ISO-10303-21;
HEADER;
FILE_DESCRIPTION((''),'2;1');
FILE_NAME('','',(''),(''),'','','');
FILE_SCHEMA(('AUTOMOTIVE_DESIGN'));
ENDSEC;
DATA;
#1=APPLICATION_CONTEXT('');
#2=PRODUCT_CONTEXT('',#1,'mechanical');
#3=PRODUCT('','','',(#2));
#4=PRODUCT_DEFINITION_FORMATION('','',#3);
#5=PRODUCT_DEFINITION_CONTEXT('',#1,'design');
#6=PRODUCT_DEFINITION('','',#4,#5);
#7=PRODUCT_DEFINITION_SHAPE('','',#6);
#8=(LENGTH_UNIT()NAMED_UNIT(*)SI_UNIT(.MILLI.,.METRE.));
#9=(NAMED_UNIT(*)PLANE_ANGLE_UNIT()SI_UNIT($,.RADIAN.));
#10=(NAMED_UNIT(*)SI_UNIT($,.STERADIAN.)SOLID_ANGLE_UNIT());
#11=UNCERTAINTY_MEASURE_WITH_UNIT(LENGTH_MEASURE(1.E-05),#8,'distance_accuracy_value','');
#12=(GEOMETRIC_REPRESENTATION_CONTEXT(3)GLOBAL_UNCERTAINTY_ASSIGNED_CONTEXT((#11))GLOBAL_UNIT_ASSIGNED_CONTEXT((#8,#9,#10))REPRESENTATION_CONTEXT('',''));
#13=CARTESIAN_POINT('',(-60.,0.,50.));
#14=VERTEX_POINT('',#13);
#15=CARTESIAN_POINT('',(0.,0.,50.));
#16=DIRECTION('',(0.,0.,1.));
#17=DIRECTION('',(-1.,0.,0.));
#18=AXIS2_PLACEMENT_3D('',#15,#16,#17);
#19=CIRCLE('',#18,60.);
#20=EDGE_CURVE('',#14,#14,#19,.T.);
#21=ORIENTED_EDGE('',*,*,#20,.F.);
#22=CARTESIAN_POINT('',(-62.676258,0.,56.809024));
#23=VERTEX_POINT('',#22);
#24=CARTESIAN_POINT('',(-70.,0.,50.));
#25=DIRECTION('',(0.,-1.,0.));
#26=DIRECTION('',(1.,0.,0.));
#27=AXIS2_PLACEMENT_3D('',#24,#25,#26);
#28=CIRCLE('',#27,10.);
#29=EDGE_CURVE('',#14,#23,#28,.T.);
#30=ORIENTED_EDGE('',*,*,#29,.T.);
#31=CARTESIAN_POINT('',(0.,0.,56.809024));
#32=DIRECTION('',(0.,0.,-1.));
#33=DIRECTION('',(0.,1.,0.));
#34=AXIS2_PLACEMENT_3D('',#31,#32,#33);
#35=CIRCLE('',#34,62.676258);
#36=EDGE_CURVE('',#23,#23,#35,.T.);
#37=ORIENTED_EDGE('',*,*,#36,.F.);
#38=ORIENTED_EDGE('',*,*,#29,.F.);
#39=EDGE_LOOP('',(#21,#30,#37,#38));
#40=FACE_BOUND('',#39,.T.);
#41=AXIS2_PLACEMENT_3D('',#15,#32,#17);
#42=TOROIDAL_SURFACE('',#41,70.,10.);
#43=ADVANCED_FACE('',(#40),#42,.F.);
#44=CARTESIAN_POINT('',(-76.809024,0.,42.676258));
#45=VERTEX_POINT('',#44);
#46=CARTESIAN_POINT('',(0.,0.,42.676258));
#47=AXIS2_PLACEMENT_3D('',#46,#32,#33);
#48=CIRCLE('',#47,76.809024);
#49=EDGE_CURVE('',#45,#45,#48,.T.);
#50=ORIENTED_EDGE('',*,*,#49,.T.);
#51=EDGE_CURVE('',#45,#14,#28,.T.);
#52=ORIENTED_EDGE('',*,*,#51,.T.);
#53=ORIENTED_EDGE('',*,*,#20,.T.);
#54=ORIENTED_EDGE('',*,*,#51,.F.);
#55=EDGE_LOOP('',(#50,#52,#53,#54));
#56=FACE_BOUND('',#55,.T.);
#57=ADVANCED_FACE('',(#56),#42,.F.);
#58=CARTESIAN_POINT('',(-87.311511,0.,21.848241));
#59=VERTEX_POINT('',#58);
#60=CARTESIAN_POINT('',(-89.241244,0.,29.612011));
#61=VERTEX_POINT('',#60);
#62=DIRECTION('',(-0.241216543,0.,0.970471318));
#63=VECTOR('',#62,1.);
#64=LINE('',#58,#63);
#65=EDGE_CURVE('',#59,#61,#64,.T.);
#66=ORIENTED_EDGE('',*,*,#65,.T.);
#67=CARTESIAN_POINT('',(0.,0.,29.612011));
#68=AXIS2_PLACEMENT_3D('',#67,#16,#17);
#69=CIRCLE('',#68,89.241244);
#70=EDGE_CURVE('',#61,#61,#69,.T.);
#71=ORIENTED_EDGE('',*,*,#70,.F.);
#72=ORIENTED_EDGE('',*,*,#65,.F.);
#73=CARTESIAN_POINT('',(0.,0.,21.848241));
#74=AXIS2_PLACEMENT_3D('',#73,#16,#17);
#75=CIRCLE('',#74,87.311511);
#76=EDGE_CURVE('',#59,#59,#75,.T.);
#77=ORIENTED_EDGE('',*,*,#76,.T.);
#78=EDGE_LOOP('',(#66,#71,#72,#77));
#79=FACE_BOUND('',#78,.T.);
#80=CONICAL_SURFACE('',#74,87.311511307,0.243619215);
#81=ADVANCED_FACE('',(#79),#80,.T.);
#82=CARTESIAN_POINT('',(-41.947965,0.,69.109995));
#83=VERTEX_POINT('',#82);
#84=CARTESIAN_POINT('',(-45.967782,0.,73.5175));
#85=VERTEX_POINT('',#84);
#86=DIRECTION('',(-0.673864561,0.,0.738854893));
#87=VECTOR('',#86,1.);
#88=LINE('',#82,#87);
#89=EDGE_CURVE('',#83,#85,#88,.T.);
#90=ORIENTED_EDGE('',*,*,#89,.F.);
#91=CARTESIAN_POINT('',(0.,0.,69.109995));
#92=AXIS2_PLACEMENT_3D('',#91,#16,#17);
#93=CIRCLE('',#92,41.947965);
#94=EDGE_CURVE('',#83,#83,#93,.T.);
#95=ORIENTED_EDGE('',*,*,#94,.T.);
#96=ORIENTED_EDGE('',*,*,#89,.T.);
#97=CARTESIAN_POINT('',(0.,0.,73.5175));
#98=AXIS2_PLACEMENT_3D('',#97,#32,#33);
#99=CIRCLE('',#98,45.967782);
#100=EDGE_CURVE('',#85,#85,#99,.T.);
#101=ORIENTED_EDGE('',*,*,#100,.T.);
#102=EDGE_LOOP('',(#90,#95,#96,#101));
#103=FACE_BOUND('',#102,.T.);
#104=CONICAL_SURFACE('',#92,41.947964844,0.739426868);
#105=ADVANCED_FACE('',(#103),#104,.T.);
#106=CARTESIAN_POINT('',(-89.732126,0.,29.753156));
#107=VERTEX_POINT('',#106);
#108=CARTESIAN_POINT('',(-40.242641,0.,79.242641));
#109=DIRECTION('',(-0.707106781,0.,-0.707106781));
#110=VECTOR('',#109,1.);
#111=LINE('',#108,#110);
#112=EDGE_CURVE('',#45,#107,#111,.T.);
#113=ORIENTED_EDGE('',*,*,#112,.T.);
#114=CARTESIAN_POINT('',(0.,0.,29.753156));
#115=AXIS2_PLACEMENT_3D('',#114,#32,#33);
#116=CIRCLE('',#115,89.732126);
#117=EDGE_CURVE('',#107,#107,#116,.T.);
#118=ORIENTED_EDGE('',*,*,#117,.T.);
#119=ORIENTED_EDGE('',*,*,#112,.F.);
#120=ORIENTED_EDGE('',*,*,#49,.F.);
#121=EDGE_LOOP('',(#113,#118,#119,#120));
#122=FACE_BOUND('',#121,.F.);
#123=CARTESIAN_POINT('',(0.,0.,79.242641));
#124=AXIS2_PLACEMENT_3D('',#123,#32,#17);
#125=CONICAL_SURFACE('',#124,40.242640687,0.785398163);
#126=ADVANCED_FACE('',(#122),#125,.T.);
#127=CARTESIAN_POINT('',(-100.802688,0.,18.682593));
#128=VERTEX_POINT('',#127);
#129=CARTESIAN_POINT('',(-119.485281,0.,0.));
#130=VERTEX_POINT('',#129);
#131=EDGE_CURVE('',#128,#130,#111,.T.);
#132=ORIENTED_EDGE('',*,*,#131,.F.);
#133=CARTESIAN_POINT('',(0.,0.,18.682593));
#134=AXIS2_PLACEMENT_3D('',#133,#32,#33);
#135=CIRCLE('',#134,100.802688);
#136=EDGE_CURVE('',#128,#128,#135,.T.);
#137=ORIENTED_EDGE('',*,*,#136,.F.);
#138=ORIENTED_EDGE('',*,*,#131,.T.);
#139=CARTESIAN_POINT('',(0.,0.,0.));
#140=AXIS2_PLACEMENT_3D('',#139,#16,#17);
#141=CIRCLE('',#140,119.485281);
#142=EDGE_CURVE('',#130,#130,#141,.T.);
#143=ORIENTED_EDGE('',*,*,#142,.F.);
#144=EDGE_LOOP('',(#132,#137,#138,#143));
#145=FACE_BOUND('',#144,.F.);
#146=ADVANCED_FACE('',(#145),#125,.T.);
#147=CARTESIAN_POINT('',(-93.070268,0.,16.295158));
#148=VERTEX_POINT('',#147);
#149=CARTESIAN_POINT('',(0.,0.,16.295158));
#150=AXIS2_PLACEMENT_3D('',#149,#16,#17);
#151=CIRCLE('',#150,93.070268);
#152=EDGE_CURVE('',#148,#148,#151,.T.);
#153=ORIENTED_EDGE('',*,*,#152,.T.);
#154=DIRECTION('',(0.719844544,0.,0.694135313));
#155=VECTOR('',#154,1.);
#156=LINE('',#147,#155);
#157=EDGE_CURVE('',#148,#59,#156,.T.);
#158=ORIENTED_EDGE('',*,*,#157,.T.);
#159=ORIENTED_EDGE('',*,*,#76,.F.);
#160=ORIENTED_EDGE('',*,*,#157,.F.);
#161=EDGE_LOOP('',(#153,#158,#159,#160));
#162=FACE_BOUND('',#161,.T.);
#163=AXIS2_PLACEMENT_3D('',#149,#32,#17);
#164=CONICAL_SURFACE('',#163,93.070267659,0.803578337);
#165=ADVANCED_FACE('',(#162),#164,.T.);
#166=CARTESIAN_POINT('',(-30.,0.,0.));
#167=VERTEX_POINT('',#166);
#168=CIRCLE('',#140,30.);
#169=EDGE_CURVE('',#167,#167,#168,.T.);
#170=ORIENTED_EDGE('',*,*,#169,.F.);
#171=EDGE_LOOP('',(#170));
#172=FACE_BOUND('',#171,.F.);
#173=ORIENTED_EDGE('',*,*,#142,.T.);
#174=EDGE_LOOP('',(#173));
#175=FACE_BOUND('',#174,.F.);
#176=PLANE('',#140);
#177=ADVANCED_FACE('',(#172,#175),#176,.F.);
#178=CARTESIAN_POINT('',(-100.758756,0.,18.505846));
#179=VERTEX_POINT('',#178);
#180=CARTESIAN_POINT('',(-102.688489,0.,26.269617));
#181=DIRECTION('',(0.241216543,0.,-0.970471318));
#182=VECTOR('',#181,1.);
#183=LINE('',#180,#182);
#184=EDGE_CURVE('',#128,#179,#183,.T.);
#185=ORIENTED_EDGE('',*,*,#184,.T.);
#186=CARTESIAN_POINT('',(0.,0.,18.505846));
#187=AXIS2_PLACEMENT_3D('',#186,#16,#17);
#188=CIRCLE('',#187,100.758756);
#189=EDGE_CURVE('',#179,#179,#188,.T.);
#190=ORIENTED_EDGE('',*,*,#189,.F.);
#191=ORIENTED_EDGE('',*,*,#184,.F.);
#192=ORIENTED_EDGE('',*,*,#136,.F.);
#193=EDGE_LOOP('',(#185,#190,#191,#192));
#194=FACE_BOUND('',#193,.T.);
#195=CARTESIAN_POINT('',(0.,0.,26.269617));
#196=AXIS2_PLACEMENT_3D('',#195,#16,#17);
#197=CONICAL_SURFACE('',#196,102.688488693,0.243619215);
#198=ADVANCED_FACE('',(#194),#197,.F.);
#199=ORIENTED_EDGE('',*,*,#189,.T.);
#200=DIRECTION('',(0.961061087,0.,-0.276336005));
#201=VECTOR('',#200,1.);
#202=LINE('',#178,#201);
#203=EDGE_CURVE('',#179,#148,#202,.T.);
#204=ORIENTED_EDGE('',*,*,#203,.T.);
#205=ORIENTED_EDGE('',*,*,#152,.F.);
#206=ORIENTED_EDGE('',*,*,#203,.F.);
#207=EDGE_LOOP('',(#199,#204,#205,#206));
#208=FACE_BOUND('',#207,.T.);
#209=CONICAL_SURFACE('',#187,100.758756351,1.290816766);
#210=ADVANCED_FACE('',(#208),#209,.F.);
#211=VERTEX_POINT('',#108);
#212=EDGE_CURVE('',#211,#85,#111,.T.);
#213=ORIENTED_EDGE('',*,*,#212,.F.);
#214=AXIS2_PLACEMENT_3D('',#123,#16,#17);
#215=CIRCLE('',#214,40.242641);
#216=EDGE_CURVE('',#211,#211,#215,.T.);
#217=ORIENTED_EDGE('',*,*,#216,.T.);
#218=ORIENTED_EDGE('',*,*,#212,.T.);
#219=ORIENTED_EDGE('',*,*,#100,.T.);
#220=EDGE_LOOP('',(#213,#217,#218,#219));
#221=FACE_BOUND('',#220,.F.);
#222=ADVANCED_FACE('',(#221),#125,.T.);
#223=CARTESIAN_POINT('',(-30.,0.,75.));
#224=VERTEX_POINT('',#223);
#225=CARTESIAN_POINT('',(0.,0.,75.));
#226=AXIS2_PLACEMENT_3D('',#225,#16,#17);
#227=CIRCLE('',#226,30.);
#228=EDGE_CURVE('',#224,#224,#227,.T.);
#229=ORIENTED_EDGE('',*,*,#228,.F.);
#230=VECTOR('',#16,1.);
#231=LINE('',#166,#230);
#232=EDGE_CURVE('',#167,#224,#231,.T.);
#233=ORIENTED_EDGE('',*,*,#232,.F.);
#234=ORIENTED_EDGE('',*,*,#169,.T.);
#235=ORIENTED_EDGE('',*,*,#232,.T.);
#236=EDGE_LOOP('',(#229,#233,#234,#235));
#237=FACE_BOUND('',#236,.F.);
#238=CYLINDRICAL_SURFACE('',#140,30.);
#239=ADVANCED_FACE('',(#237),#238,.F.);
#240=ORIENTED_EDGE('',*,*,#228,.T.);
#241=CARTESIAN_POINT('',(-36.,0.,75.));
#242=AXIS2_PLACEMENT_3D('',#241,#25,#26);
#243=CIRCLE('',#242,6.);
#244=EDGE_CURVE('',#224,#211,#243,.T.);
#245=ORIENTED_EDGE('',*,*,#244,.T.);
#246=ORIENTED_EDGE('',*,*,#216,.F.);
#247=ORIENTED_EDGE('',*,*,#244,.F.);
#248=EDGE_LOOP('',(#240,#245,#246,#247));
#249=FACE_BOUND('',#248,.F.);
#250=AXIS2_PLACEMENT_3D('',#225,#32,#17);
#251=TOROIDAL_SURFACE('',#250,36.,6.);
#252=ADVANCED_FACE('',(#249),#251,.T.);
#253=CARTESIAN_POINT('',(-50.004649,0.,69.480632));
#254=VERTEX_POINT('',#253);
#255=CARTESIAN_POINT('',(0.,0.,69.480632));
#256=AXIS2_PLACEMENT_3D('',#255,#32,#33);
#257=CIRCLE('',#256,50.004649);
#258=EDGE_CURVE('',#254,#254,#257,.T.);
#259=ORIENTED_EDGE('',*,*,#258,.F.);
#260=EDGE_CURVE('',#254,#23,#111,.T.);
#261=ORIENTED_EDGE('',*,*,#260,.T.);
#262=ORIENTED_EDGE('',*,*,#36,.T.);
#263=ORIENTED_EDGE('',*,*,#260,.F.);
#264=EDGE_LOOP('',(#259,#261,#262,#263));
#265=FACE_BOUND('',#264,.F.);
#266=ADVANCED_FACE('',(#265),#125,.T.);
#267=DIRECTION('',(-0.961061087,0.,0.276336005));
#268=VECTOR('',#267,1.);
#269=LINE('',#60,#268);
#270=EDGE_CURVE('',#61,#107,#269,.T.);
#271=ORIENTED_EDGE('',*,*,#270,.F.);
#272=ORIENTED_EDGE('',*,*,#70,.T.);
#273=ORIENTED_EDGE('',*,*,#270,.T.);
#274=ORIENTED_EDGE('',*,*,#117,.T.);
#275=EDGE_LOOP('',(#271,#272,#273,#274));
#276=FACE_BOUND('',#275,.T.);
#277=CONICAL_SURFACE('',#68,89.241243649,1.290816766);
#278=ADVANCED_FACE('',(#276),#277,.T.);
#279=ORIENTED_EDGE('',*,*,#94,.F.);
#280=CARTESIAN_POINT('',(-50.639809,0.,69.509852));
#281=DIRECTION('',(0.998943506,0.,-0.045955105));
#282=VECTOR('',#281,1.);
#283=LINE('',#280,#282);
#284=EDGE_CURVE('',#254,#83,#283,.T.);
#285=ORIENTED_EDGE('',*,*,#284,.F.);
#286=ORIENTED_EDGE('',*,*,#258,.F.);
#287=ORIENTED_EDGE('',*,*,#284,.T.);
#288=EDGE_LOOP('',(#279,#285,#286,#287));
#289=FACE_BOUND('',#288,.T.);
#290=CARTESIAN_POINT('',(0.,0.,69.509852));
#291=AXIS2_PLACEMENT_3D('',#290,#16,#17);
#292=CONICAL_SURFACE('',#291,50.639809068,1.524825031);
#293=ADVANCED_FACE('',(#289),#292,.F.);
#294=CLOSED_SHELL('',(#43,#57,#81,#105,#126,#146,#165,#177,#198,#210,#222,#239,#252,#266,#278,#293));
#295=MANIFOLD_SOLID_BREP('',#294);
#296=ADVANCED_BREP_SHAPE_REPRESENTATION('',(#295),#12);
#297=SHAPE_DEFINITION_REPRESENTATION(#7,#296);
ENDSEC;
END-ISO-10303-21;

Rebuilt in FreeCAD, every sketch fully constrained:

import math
import FreeCAD as App
import Part
import Sketcher
from FreeCAD import Vector
Q = App.Units.Quantity

doc = App.newDocument("Part")
body = doc.addObject("PartDesign::Body", "Body")

# Sketch on XZ plane
sketch1 = body.newObject("Sketcher::SketchObject", "Sketch")
sketch1.AttachmentSupport = (doc.getObject("XZ_Plane"), [""])
sketch1.MapMode = "FlatFace"
sketch1.addGeometry(Part.LineSegment(Vector(-119.485281, 0, 0), Vector(-30, 0, 0)), False)
sketch1.addGeometry(Part.LineSegment(Vector(-30, 0, 0), Vector(-30, 75, 0)), False)
sketch1.addGeometry(Part.ArcOfCircle(Part.Circle(Vector(-36, 75, 0), Vector(0, 0, 1), 6), math.radians(0), math.radians(135)), False)
sketch1.addGeometry(Part.LineSegment(Vector(-40.242641, 79.242641, 0), Vector(-119.485281, 0, 0)), False)
sketch1.addConstraint(Sketcher.Constraint("Coincident", 0, 2, 1, 1))
sketch1.addConstraint(Sketcher.Constraint("Tangent", 1, 2, 2, 1))
sketch1.addConstraint(Sketcher.Constraint("Tangent", 2, 2, 3, 1))
sketch1.addConstraint(Sketcher.Constraint("Coincident", 3, 2, 0, 1))
sketch1.addConstraint(Sketcher.Constraint("Horizontal", 0))
sketch1.addConstraint(Sketcher.Constraint("Vertical", 1))
sketch1.addConstraint(Sketcher.Constraint("PointOnObject", 0, 2, -1))
sketch1.addConstraint(Sketcher.Constraint("Radius", 2, Q("6 mm")))
sketch1.addConstraint(Sketcher.Constraint("DistanceY", 1, 1, 1, 2, Q("75 mm")))
sketch1.addConstraint(Sketcher.Constraint("Angle", 3, Q("-135 deg")))
sketch1.addConstraint(Sketcher.Constraint("DistanceX", 2, 3, -1, 1, Q("36 mm")))
revolution = body.newObject("PartDesign::Revolution", "Revolution")
revolution.Profile = sketch1
revolution.ReferenceAxis = (sketch1, ["V_Axis"])
revolution.Angle = 360

# Sketch on XZ plane
sketch2 = body.newObject("Sketcher::SketchObject", "Sketch001")
sketch2.AttachmentSupport = (doc.getObject("XZ_Plane"), [""])
sketch2.MapMode = "FlatFace"
sketch2.addGeometry(Part.Circle(Vector(-70, 50, 0), Vector(0, 0, 1), 10), False)
sketch2.addConstraint(Sketcher.Constraint("Diameter", 0, Q("20 mm")))
sketch2.addConstraint(Sketcher.Constraint("DistanceX", 0, 3, -1, 1, Q("70 mm")))
sketch2.addConstraint(Sketcher.Constraint("DistanceY", -1, 1, 0, 3, Q("50 mm")))
groove = body.newObject("PartDesign::Groove", "Groove")
groove.Profile = sketch2
groove.ReferenceAxis = (sketch2, ["V_Axis"])
groove.Angle = 360

# Sketch on XZ plane
sketch3 = body.newObject("Sketcher::SketchObject", "Sketch002")
sketch3.AttachmentSupport = (doc.getObject("XZ_Plane"), [""])
sketch3.MapMode = "FlatFace"
sketch3.addGeometry(Part.LineSegment(Vector(-93.070268, 16.295158, 0), Vector(-87.311511, 21.848241, 0)), False)
sketch3.addGeometry(Part.LineSegment(Vector(-87.311511, 21.848241, 0), Vector(-89.241244, 29.612011, 0)), False)
sketch3.addGeometry(Part.LineSegment(Vector(-89.241244, 29.612011, 0), Vector(-96.929732, 31.822699, 0)), False)
sketch3.addGeometry(Part.LineSegment(Vector(-96.929732, 31.822699, 0), Vector(-102.688489, 26.269617, 0)), False)
sketch3.addGeometry(Part.LineSegment(Vector(-102.688489, 26.269617, 0), Vector(-100.758756, 18.505846, 0)), False)
sketch3.addGeometry(Part.LineSegment(Vector(-100.758756, 18.505846, 0), Vector(-93.070268, 16.295158, 0)), False)
sketch3.addConstraint(Sketcher.Constraint("Coincident", 0, 2, 1, 1))
sketch3.addConstraint(Sketcher.Constraint("Coincident", 1, 2, 2, 1))
sketch3.addConstraint(Sketcher.Constraint("Coincident", 2, 2, 3, 1))
sketch3.addConstraint(Sketcher.Constraint("Coincident", 3, 2, 4, 1))
sketch3.addConstraint(Sketcher.Constraint("Coincident", 4, 2, 5, 1))
sketch3.addConstraint(Sketcher.Constraint("Coincident", 5, 2, 0, 1))
sketch3.addConstraint(Sketcher.Constraint("Parallel", 0, 3))
sketch3.addConstraint(Sketcher.Constraint("Parallel", 1, 4))
sketch3.addConstraint(Sketcher.Constraint("Parallel", 2, 5))
sketch3.addConstraint(Sketcher.Constraint("Equal", 0, 1))
sketch3.addConstraint(Sketcher.Constraint("Equal", 1, 2))
sketch3.addConstraint(Sketcher.Constraint("Equal", 2, 3))
sketch3.addConstraint(Sketcher.Constraint("Distance", 0, Q("8 mm")))
sketch3.addConstraint(Sketcher.Constraint("DistanceY", -1, 1, 2, 2, Q("31.822699 mm")))
sketch3.addConstraint(Sketcher.Constraint("DistanceX", 0, 2, -1, 1, Q("87.311511 mm")))
sketch3.addConstraint(Sketcher.Constraint("DistanceY", -1, 1, 0, 2, Q("21.848241 mm")))
sketch3.addConstraint(Sketcher.Constraint("DistanceY", -1, 1, 1, 2, Q("29.612011 mm")))
sketch3.addConstraint(Sketcher.Constraint("DistanceX", 3, 2, -1, 1, Q("102.688489 mm")))
groove2 = body.newObject("PartDesign::Groove", "Groove001")
groove2.Profile = sketch3
groove2.ReferenceAxis = (sketch3, ["V_Axis"])
groove2.Angle = 360

# Sketch on XZ plane
sketch4 = body.newObject("Sketcher::SketchObject", "Sketch003")
sketch4.AttachmentSupport = (doc.getObject("XZ_Plane"), [""])
sketch4.MapMode = "FlatFace"
sketch4.addGeometry(Part.LineSegment(Vector(-50.239952, 78.201696, 0), Vector(-50.639809, 69.509852, 0)), False)
sketch4.addGeometry(Part.LineSegment(Vector(-50.639809, 69.509852, 0), Vector(-41.947965, 69.109995, 0)), False)
sketch4.addGeometry(Part.LineSegment(Vector(-41.947965, 69.109995, 0), Vector(-50.239952, 78.201696, 0)), False)
sketch4.addConstraint(Sketcher.Constraint("Coincident", 0, 2, 1, 1))
sketch4.addConstraint(Sketcher.Constraint("Coincident", 1, 2, 2, 1))
sketch4.addConstraint(Sketcher.Constraint("Coincident", 2, 2, 0, 1))
sketch4.addConstraint(Sketcher.Constraint("Perpendicular", 0, 1))
sketch4.addConstraint(Sketcher.Constraint("Equal", 0, 1))
sketch4.addConstraint(Sketcher.Constraint("DistanceY", 1, 2, 2, 2, Q("9.091701 mm")))
sketch4.addConstraint(Sketcher.Constraint("DistanceX", 0, 2, -1, 1, Q("50.639809 mm")))
sketch4.addConstraint(Sketcher.Constraint("DistanceY", -1, 1, 0, 2, Q("69.509852 mm")))
sketch4.addConstraint(Sketcher.Constraint("Distance", 0, Q("8.701037 mm")))
groove3 = body.newObject("PartDesign::Groove", "Groove002")
groove3.Profile = sketch4
groove3.ReferenceAxis = (sketch4, ["V_Axis"])
groove3.Angle = 360

doc.recompute()
